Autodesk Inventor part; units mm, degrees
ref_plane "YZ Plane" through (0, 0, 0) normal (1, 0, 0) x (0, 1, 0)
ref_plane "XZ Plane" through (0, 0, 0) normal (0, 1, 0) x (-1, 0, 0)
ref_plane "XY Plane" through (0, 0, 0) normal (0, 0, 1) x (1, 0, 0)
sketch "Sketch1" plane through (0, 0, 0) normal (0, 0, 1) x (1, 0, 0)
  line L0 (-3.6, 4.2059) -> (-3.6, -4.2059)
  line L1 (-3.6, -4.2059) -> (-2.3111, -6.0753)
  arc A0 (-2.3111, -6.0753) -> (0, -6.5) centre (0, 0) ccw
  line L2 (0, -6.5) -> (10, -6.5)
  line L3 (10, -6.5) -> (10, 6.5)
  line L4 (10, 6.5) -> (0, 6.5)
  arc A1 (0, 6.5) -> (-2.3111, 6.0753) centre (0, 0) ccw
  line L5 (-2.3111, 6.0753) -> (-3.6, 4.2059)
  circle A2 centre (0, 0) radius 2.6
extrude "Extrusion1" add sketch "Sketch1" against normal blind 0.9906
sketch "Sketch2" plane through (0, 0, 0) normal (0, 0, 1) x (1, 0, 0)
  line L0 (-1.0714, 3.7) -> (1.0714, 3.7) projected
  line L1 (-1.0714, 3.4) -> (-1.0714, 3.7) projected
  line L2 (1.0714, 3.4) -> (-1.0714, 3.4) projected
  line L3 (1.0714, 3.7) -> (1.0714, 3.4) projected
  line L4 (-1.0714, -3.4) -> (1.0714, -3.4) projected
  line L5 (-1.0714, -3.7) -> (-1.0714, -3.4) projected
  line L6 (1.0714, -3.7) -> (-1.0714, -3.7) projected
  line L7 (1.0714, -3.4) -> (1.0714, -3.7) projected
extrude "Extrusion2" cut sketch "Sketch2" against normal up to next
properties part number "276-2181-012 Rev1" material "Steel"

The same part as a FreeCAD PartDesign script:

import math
import FreeCAD as App
import Part
import Sketcher

doc = App.newDocument("Part")
params = doc.addObject("Spreadsheet::Sheet", "Params")
for row, (alias, value) in enumerate([
    ("sketch1_diameter", "5.2 mm"),
    ("sketch1_width", "10 mm"),
    ("sketch1_height", "13 mm"),
    ("pad1_length", "0.9906 mm"),
    ("sketch2_height", "0.3 mm"),
    ("pocket1_length", "0.9906 mm"),
], start=1):
    params.set(f"A{row}", alias)
    params.set(f"B{row}", "=" + value)
    params.setAlias(f"B{row}", alias)

body = doc.addObject("PartDesign::Body", "Body")

sketch1 = body.newObject("Sketcher::SketchObject", "Sketch")
sketch1.AttachmentSupport = (doc.getObject("XY_Plane"), [""])
sketch1.MapMode = "FlatFace"
sketch1.addGeometry([
    Part.LineSegment(App.Vector(-2.3, 6.1, 0), App.Vector(-3.6, 4.2, 0)),
    Part.LineSegment(App.Vector(-3.6, 4.2, 0), App.Vector(-3.6, -4.2, 0)),
    Part.LineSegment(App.Vector(-3.6, -4.2, 0), App.Vector(-2.3, -6.1, 0)),
    Part.ArcOfCircle(Part.Circle(App.Vector(0, 0, 0), App.Vector(0, 0, 1), 6.5), math.radians(-111), math.radians(-90)),
    Part.LineSegment(App.Vector(0, -6.5, 0), App.Vector(10, -6.5, 0)),
    Part.LineSegment(App.Vector(10, -6.5, 0), App.Vector(10, 6.5, 0)),
    Part.LineSegment(App.Vector(10, 6.5, 0), App.Vector(0, 6.5, 0)),
    Part.ArcOfCircle(Part.Circle(App.Vector(0, 0, 0), App.Vector(0, 0, 1), 6.5), math.radians(90), math.radians(111)),
    Part.Circle(App.Vector(0, 0, 0), App.Vector(0, 0, 1), 2.6),
], False)
sketch1.addConstraint([
    Sketcher.Constraint("Coincident", 0, 2, 1, 1),
    Sketcher.Constraint("Coincident", 1, 2, 2, 1),
    Sketcher.Constraint("Coincident", 2, 2, 3, 1),
    Sketcher.Constraint("Tangent", 3, 2, 4, 1),
    Sketcher.Constraint("Coincident", 4, 2, 5, 1),
    Sketcher.Constraint("Coincident", 5, 2, 6, 1),
    Sketcher.Constraint("Tangent", 6, 2, 7, 1),
    Sketcher.Constraint("Coincident", 7, 2, 0, 1),
    Sketcher.Constraint("Vertical", 1),
    Sketcher.Constraint("Horizontal", 4),
    Sketcher.Constraint("Vertical", 5),
    Sketcher.Constraint("Horizontal", 6),
    Sketcher.Constraint("Coincident", 8, 3, -1, 1),
    Sketcher.Constraint("Coincident", 7, 3, 3, 3),
    Sketcher.Constraint("Symmetric", 3, 2, 6, 2, -1, 1),
    Sketcher.Constraint("Symmetric", 2, 2, 7, 2, -1),
    Sketcher.Constraint("Equal", 0, 2),
    Sketcher.Constraint("Diameter", 8, 5.2),
    Sketcher.Constraint("DistanceX", 4, 1, 4, 2, 10.0),
    Sketcher.Constraint("DistanceY", 5, 1, 5, 2, 13.0),
    Sketcher.Constraint("DistanceX", 0, 2, -1, 1, 3.6),
    Sketcher.Constraint("DistanceY", 1, 2, 1, 1, 8.4118),
    Sketcher.Constraint("DistanceX", 2, 2, -1, 1, 2.311),
])
sketch1.setExpression("Constraints[17]", "Params.sketch1_diameter")
sketch1.setExpression("Constraints[18]", "Params.sketch1_width")
sketch1.setExpression("Constraints[19]", "Params.sketch1_height")
pad1 = body.newObject("PartDesign::Pad", "Pad")
pad1.Profile = sketch1
pad1.setExpression("Length", "Params.pad1_length")
pad1.Reversed = True

sketch2 = body.newObject("Sketcher::SketchObject", "Sketch001")
sketch2.AttachmentSupport = (doc.getObject("XY_Plane"), [""])
sketch2.MapMode = "FlatFace"
sketch2.addGeometry([
    Part.LineSegment(App.Vector(1.07, 3.7, 0), App.Vector(-1.07, 3.7, 0)),
    Part.LineSegment(App.Vector(-1.07, 3.7, 0), App.Vector(-1.07, 3.4, 0)),
    Part.LineSegment(App.Vector(-1.07, 3.4, 0), App.Vector(1.07, 3.4, 0)),
    Part.LineSegment(App.Vector(1.07, 3.4, 0), App.Vector(1.07, 3.7, 0)),
    Part.LineSegment(App.Vector(1.07, -3.4, 0), App.Vector(-1.07, -3.4, 0)),
    Part.LineSegment(App.Vector(-1.07, -3.4, 0), App.Vector(-1.07, -3.7, 0)),
    Part.LineSegment(App.Vector(-1.07, -3.7, 0), App.Vector(1.07, -3.7, 0)),
    Part.LineSegment(App.Vector(1.07, -3.7, 0), App.Vector(1.07, -3.4, 0)),
], False)
sketch2.addConstraint([
    Sketcher.Constraint("Coincident", 0, 2, 1, 1),
    Sketcher.Constraint("Coincident", 1, 2, 2, 1),
    Sketcher.Constraint("Coincident", 2, 2, 3, 1),
    Sketcher.Constraint("Coincident", 3, 2, 0, 1),
    Sketcher.Constraint("Coincident", 4, 2, 5, 1),
    Sketcher.Constraint("Coincident", 5, 2, 6, 1),
    Sketcher.Constraint("Coincident", 6, 2, 7, 1),
    Sketcher.Constraint("Coincident", 7, 2, 4, 1),
    Sketcher.Constraint("Horizontal", 0),
    Sketcher.Constraint("Vertical", 1),
    Sketcher.Constraint("Horizontal", 2),
    Sketcher.Constraint("Vertical", 3),
    Sketcher.Constraint("Horizontal", 4),
    Sketcher.Constraint("Vertical", 5),
    Sketcher.Constraint("Horizontal", 6),
    Sketcher.Constraint("Vertical", 7),
    Sketcher.Constraint("Symmetric", 2, 2, 4, 2, -1, 1),
    Sketcher.Constraint("Symmetric", 0, 2, 6, 2, -1, 1),
    Sketcher.Constraint("Vertical", 1, 2, 4, 2),
    Sketcher.Constraint("DistanceY", 1, 2, 1, 1, 0.3),
    Sketcher.Constraint("DistanceY", -1, 1, 0, 2, 3.7),
    Sketcher.Constraint("DistanceX", 0, 2, 0, 1, 2.1428),
])
sketch2.setExpression("Constraints[19]", "Params.sketch2_height")
pocket1 = body.newObject("PartDesign::Pocket", "Pocket")
pocket1.Profile = sketch2
pocket1.setExpression("Length", "Params.pocket1_length")

doc.recompute()
